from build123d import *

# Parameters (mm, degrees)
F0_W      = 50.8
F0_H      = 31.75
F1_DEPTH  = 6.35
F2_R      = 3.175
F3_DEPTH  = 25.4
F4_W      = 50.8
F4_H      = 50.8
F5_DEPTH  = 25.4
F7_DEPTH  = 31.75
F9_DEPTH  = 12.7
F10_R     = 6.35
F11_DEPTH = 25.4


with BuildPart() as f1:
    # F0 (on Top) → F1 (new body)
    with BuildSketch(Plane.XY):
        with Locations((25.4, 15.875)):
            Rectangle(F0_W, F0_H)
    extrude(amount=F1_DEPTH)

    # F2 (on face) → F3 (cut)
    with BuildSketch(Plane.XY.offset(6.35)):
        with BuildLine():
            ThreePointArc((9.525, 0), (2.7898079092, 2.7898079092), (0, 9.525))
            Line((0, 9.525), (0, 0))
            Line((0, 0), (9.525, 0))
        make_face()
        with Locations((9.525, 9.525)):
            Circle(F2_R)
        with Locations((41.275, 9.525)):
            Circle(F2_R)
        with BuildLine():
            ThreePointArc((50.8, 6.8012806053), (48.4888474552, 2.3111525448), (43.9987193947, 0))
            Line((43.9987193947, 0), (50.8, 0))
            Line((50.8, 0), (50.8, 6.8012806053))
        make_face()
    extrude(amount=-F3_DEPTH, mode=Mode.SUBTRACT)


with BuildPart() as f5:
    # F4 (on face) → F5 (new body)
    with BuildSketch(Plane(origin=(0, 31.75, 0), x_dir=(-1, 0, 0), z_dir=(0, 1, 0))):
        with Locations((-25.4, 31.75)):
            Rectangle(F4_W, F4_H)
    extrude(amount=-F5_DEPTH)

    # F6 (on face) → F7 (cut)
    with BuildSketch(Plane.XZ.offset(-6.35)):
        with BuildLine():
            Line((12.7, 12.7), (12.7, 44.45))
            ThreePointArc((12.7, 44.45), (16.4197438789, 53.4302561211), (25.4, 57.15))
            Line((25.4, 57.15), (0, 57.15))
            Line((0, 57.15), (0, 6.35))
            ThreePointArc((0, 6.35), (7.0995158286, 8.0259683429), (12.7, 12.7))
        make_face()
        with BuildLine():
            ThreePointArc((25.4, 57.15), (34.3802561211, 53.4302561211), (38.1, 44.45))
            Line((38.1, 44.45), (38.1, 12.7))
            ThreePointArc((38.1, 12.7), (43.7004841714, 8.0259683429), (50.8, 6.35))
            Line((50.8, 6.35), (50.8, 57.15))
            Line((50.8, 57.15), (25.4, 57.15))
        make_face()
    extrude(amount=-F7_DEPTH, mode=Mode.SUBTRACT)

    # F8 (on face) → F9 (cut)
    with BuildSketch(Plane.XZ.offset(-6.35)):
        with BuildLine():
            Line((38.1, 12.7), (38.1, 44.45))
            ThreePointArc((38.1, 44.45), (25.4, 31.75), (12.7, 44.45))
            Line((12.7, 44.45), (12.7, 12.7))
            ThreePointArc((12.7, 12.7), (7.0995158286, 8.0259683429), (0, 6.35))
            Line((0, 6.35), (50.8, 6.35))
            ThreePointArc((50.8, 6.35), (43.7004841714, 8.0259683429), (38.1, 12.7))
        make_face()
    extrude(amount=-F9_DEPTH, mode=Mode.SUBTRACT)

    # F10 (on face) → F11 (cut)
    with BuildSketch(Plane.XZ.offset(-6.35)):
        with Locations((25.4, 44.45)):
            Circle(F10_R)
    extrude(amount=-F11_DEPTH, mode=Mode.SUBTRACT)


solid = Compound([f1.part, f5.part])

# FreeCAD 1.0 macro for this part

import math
import FreeCAD as App
import Part
import Sketcher
from FreeCAD import Vector
Q = App.Units.Quantity

doc = App.newDocument("Part")
params = doc.addObject("Spreadsheet::Sheet", "Params")
for row, (alias, value) in enumerate([
    ("sketch1_width", "2 in"),
    ("sketch1_height", "1.25 in"),
    ("pad1_length", "0.25 in"),
    ("sketch2_diameter", "0.25 in"),
    ("sketch2_radius", "0.375 in"),
    ("pocket1_length", "1 in"),
    ("sketch3_width", "2 in"),
    ("pad2_length", "1 in"),
    ("sketch4_radius", "0.5 in"),
    ("sketch4_width", "1 in"),
    ("sketch4_height", "2 in"),
    ("sketch4_radius2", "0.625 in"),
    ("pocket2_length", "1.25 in"),
    ("sketch5_radius", "0.5 in"),
    ("sketch5_width", "2 in"),
    ("sketch5_radius2", "0.625 in"),
    ("sketch5_height", "1.25 in"),
    ("pocket3_length", "0.5 in"),
    ("sketch6_diameter", "0.5 in"),
    ("pocket4_length", "1 in"),
], start=1):
    params.set(f"A{row}", alias)
    params.set(f"B{row}", "=" + value)
    params.setAlias(f"B{row}", alias)

body = doc.addObject("PartDesign::Body", "Body")

sketch1 = body.newObject("Sketcher::SketchObject", "Sketch")
sketch1.AttachmentSupport = (doc.getObject("XY_Plane"), [""])
sketch1.MapMode = "FlatFace"
sketch1.addGeometry([
    Part.LineSegment(Vector(0, 31.75, 0), Vector(0, 0, 0)),
    Part.LineSegment(Vector(0, 0, 0), Vector(50.8, 0, 0)),
    Part.LineSegment(Vector(50.8, 0, 0), Vector(50.8, 31.75, 0)),
    Part.LineSegment(Vector(50.8, 31.75, 0), Vector(0, 31.75, 0)),
], False)
sketch1.addConstraint([
    Sketcher.Constraint("Coincident", 0, 2, 1, 1),
    Sketcher.Constraint("Coincident", 1, 2, 2, 1),
    Sketcher.Constraint("Coincident", 2, 2, 3, 1),
    Sketcher.Constraint("Coincident", 3, 2, 0, 1),
    Sketcher.Constraint("Vertical", 0),
    Sketcher.Constraint("Horizontal", 1),
    Sketcher.Constraint("Vertical", 2),
    Sketcher.Constraint("Horizontal", 3),
    Sketcher.Constraint("Coincident", 0, 2, -1, 1),
    Sketcher.Constraint("DistanceX", 1, 1, 1, 2, Q("2 in")),
    Sketcher.Constraint("DistanceY", 0, 2, 0, 1, Q("1.25 in")),
])
sketch1.setExpression("Constraints[9]", "Params.sketch1_width")
sketch1.setExpression("Constraints[10]", "Params.sketch1_height")
pad1 = body.newObject("PartDesign::Pad", "Pad")
pad1.Profile = sketch1
pad1.setExpression("Length", "Params.pad1_length")

sketch2 = body.newObject("Sketcher::SketchObject", "Sketch001")
sketch2.AttachmentSupport = (doc.getObject("XY_Plane"), [""])
sketch2.MapMode = "FlatFace"
sketch2.AttachmentOffset = App.Placement(Vector(0, 0, 0.25 * 25.4), App.Rotation())
sketch2.addGeometry([
    Part.ArcOfCircle(Part.Circle(Vector(9.525, 9.525, 0), Vector(0, 0, 1), 9.525), math.radians(180), math.radians(270)),
    Part.LineSegment(Vector(0, 9.525, 0), Vector(0, 0, 0)),
    Part.LineSegment(Vector(0, 0, 0), Vector(9.525, 0, 0)),
    Part.Circle(Vector(9.525, 9.525, 0), Vector(0, 0, 1), 3.175),
    Part.Circle(Vector(41.275, 9.525, 0), Vector(0, 0, 1), 3.175),
    Part.ArcOfCircle(Part.Circle(Vector(42.63686, 8.16314, 0), Vector(0, 0, 1), 8.27596), math.radians(-80.528552), math.radians(-9.471448)),
    Part.LineSegment(Vector(43.998719, 0, 0), Vector(50.8, 0, 0)),
    Part.LineSegment(Vector(50.8, 0, 0), Vector(50.8, 6.801281, 0)),
], False)
sketch2.addConstraint([
    Sketcher.Constraint("Tangent", 0, 1, 1, 1),
    Sketcher.Constraint("Coincident", 1, 2, 2, 1),
    Sketcher.Constraint("Tangent", 2, 2, 0, 2),
    Sketcher.Constraint("Coincident", 5, 1, 6, 1),
    Sketcher.Constraint("Coincident", 6, 2, 7, 1),
    Sketcher.Constraint("Coincident", 7, 2, 5, 2),
    Sketcher.Constraint("Vertical", 1),
    Sketcher.Constraint("Horizontal", 2),
    Sketcher.Constraint("Horizontal", 6),
    Sketcher.Constraint("Vertical", 7),
    Sketcher.Constraint("Coincident", 1, 2, -1, 1),
    Sketcher.Constraint("Coincident", 3, 3, 0, 3),
    Sketcher.Constraint("Equal", 3, 4),
    Sketcher.Constraint("PointOnObject", 5, 1, -1),
    Sketcher.Constraint("Horizontal", 3, 3, 4, 3),
    Sketcher.Constraint("Equal", 6, 7),
    Sketcher.Constraint("Diameter", 3, Q("0.25 in")),
    Sketcher.Constraint("DistanceX", -1, 1, 6, 2, Q("2 in")),
    Sketcher.Constraint("Radius", 0, Q("0.375 in")),
    Sketcher.Constraint("DistanceX", 0, 3, 4, 3, Q("1.25 in")),
    Sketcher.Constraint("Radius", 5, Q("8.27596 mm")),
    Sketcher.Constraint("DistanceX", 6, 1, 6, 2, Q("6.801281 mm")),
])
sketch2.setExpression("Constraints[16]", "Params.sketch2_diameter")
sketch2.setExpression("Constraints[18]", "Params.sketch2_radius")
pocket1 = body.newObject("PartDesign::Pocket", "Pocket")
pocket1.Profile = sketch2
pocket1.setExpression("Length", "Params.pocket1_length")
body2 = doc.addObject("PartDesign::Body", "Body001")

sketch3 = body2.newObject("Sketcher::SketchObject", "Sketch002")
sketch3.AttachmentSupport = (doc.getObject("XZ_Plane001"), [""])
sketch3.MapMode = "FlatFace"
sketch3.AttachmentOffset = App.Placement(Vector(0, 0, -1.25 * 25.4), App.Rotation())
sketch3.addGeometry([
    Part.LineSegment(Vector(50.8, 57.15, 0), Vector(50.8, 6.35, 0)),
    Part.LineSegment(Vector(50.8, 6.35, 0), Vector(0, 6.35, 0)),
    Part.LineSegment(Vector(0, 6.35, 0), Vector(0, 57.15, 0)),
    Part.LineSegment(Vector(0, 57.15, 0), Vector(50.8, 57.15, 0)),
], False)
sketch3.addConstraint([
    Sketcher.Constraint("Coincident", 0, 2, 1, 1),
    Sketcher.Constraint("Coincident", 1, 2, 2, 1),
    Sketcher.Constraint("Coincident", 2, 2, 3, 1),
    Sketcher.Constraint("Coincident", 3, 2, 0, 1),
    Sketcher.Constraint("Vertical", 0),
    Sketcher.Constraint("Horizontal", 1),
    Sketcher.Constraint("Vertical", 2),
    Sketcher.Constraint("Horizontal", 3),
    Sketcher.Constraint("PointOnObject", 1, 2, -2),
    Sketcher.Constraint("Equal", 3, 0),
    Sketcher.Constraint("DistanceX", 1, 2, 1, 1, Q("2 in")),
    Sketcher.Constraint("DistanceY", -1, 1, 0, 2, Q("0.25 in")),
])
sketch3.setExpression("Constraints[10]", "Params.sketch3_width")
pad2 = body2.newObject("PartDesign::Pad", "Pad001")
pad2.Profile = sketch3
pad2.setExpression("Length", "Params.pad2_length")

sketch4 = body2.newObject("Sketcher::SketchObject", "Sketch003")
sketch4.AttachmentSupport = (doc.getObject("XZ_Plane001"), [""])
sketch4.MapMode = "FlatFace"
sketch4.AttachmentOffset = App.Placement(Vector(0, 0, -0.25 * 25.4), App.Rotation())
sketch4.addGeometry([
    Part.LineSegment(Vector(12.7, 12.7, 0), Vector(12.7, 44.45, 0)),
    Part.ArcOfCircle(Part.Circle(Vector(25.4, 44.45, 0), Vector(0, 0, 1), 12.7), math.radians(90), math.radians(180)),
    Part.LineSegment(Vector(25.4, 57.15, 0), Vector(0, 57.15, 0)),
    Part.LineSegment(Vector(0, 57.15, 0), Vector(0, 6.35, 0)),
    Part.ArcOfCircle(Part.Circle(Vector(0, 22.225, 0), Vector(0, 0, 1), 15.875), math.radians(-90), math.radians(-36.869898)),
    Part.ArcOfCircle(Part.Circle(Vector(25.4, 44.45, 0), Vector(0, 0, 1), 12.7), math.radians(0), math.radians(90)),
    Part.LineSegment(Vector(38.1, 44.45, 0), Vector(38.1, 12.7, 0)),
    Part.ArcOfCircle(Part.Circle(Vector(50.8, 22.225, 0), Vector(0, 0, 1), 15.875), math.radians(-143.130102), math.radians(-90)),
    Part.LineSegment(Vector(50.8, 6.35, 0), Vector(50.8, 57.15, 0)),
    Part.LineSegment(Vector(50.8, 57.15, 0), Vector(25.4, 57.15, 0)),
], False)
sketch4.addConstraint([
    Sketcher.Constraint("Tangent", 0, 2, 1, 2),
    Sketcher.Constraint("Tangent", 1, 1, 2, 1),
    Sketcher.Constraint("Coincident", 2, 2, 3, 1),
    Sketcher.Constraint("Coincident", 3, 2, 4, 1),
    Sketcher.Constraint("Coincident", 4, 2, 0, 1),
    Sketcher.Constraint("Tangent", 5, 1, 6, 1),
    Sketcher.Constraint("Coincident", 6, 2, 7, 1),
    Sketcher.Constraint("Coincident", 7, 2, 8, 1),
    Sketcher.Constraint("Coincident", 8, 2, 9, 1),
    Sketcher.Constraint("Tangent", 9, 2, 5, 2),
    Sketcher.Constraint("Vertical", 0),
    Sketcher.Constraint("Horizontal", 2),
    Sketcher.Constraint("Vertical", 3),
    Sketcher.Constraint("Vertical", 6),
    Sketcher.Constraint("Vertical", 8),
    Sketcher.Constraint("Horizontal", 9),
    Sketcher.Constraint("Coincident", 5, 3, 1, 3),
    Sketcher.Constraint("Equal", 1, 5),
    Sketcher.Constraint("Equal", 4, 7),
    Sketcher.Constraint("PointOnObject", 4, 3, -2),
    Sketcher.Constraint("PointOnObject", 2, 2, -2),
    Sketcher.Constraint("Horizontal", 4, 3, 7, 3),
    Sketcher.Constraint("Horizontal", 4, 2, 6, 2),
    Sketcher.Constraint("Equal", 2, 9),
    Sketcher.Constraint("Radius", 1, Q("0.5 in")),
    Sketcher.Constraint("DistanceX", 2, 2, 2, 1, Q("1 in")),
    Sketcher.Constraint("DistanceY", 3, 2, 3, 1, Q("2 in")),
    Sketcher.Constraint("Radius", 4, Q("0.625 in")),
    Sketcher.Constraint("DistanceY", -1, 1, 4, 2, Q("0.5 in")),
])
sketch4.setExpression("Constraints[24]", "Params.sketch4_radius")
sketch4.setExpression("Constraints[25]", "Params.sketch4_width")
sketch4.setExpression("Constraints[26]", "Params.sketch4_height")
sketch4.setExpression("Constraints[27]", "Params.sketch4_radius2")
pocket2 = body2.newObject("PartDesign::Pocket", "Pocket001")
pocket2.Profile = sketch4
pocket2.setExpression("Length", "Params.pocket2_length")

sketch5 = body2.newObject("Sketcher::SketchObject", "Sketch004")
sketch5.AttachmentSupport = (doc.getObject("XZ_Plane001"), [""])
sketch5.MapMode = "FlatFace"
sketch5.AttachmentOffset = App.Placement(Vector(0, 0, -0.25 * 25.4), App.Rotation())
sketch5.addGeometry([
    Part.LineSegment(Vector(38.1, 12.7, 0), Vector(38.1, 44.45, 0)),
    Part.ArcOfCircle(Part.Circle(Vector(25.4, 44.45, 0), Vector(0, 0, 1), 12.7), math.radians(180), math.radians(360)),
    Part.LineSegment(Vector(12.7, 44.45, 0), Vector(12.7, 12.7, 0)),
    Part.ArcOfCircle(Part.Circle(Vector(0, 22.225, 0), Vector(0, 0, 1), 15.875), math.radians(-90), math.radians(-36.869898)),
    Part.LineSegment(Vector(0, 6.35, 0), Vector(50.8, 6.35, 0)),
    Part.ArcOfCircle(Part.Circle(Vector(50.8, 22.225, 0), Vector(0, 0, 1), 15.875), math.radians(-143.130102), math.radians(-90)),
], False)
sketch5.addConstraint([
    Sketcher.Constraint("Tangent", 0, 2, 1, 2),
    Sketcher.Constraint("Tangent", 1, 1, 2, 1),
    Sketcher.Constraint("Coincident", 2, 2, 3, 2),
    Sketcher.Constraint("Tangent", 3, 1, 4, 1),
    Sketcher.Constraint("Tangent", 4, 2, 5, 2),
    Sketcher.Constraint("Coincident", 5, 1, 0, 1),
    Sketcher.Constraint("Vertical", 0),
    Sketcher.Constraint("Vertical", 2),
    Sketcher.Constraint("Horizontal", 4),
    Sketcher.Constraint("Equal", 3, 5),
    Sketcher.Constraint("PointOnObject", 3, 3, -2),
    Sketcher.Constraint("Horizontal", 2, 2, 5, 1),
    Sketcher.Constraint("Radius", 1, Q("0.5 in")),
    Sketcher.Constraint("DistanceX", 4, 1, 4, 2, Q("2 in")),
    Sketcher.Constraint("Radius", 3, Q("0.625 in")),
    Sketcher.Constraint("DistanceY", 0, 1, 0, 2, Q("1.25 in")),
    Sketcher.Constraint("DistanceY", -1, 1, 2, 2, Q("0.5 in")),
])
sketch5.setExpression("Constraints[12]", "Params.sketch5_radius")
sketch5.setExpression("Constraints[13]", "Params.sketch5_width")
sketch5.setExpression("Constraints[14]", "Params.sketch5_radius2")
sketch5.setExpression("Constraints[15]", "Params.sketch5_height")
pocket3 = body2.newObject("PartDesign::Pocket", "Pocket002")
pocket3.Profile = sketch5
pocket3.setExpression("Length", "Params.pocket3_length")

sketch6 = body2.newObject("Sketcher::SketchObject", "Sketch005")
sketch6.AttachmentSupport = (doc.getObject("XZ_Plane001"), [""])
sketch6.MapMode = "FlatFace"
sketch6.AttachmentOffset = App.Placement(Vector(0, 0, -0.25 * 25.4), App.Rotation())
sketch6.addGeometry(Part.Circle(Vector(25.4, 44.45, 0), Vector(0, 0, 1), 6.35), False)
sketch6.addConstraint([
    Sketcher.Constraint("Diameter", 0, Q("0.5 in")),
    Sketcher.Constraint("DistanceX", -1, 1, 0, 3, Q("1 in")),
    Sketcher.Constraint("DistanceY", -1, 1, 0, 3, Q("1.75 in")),
])
sketch6.setExpression("Constraints[0]", "Params.sketch6_diameter")
pocket4 = body2.newObject("PartDesign::Pocket", "Pocket003")
pocket4.Profile = sketch6
pocket4.setExpression("Length", "Params.pocket4_length")

doc.recompute()
